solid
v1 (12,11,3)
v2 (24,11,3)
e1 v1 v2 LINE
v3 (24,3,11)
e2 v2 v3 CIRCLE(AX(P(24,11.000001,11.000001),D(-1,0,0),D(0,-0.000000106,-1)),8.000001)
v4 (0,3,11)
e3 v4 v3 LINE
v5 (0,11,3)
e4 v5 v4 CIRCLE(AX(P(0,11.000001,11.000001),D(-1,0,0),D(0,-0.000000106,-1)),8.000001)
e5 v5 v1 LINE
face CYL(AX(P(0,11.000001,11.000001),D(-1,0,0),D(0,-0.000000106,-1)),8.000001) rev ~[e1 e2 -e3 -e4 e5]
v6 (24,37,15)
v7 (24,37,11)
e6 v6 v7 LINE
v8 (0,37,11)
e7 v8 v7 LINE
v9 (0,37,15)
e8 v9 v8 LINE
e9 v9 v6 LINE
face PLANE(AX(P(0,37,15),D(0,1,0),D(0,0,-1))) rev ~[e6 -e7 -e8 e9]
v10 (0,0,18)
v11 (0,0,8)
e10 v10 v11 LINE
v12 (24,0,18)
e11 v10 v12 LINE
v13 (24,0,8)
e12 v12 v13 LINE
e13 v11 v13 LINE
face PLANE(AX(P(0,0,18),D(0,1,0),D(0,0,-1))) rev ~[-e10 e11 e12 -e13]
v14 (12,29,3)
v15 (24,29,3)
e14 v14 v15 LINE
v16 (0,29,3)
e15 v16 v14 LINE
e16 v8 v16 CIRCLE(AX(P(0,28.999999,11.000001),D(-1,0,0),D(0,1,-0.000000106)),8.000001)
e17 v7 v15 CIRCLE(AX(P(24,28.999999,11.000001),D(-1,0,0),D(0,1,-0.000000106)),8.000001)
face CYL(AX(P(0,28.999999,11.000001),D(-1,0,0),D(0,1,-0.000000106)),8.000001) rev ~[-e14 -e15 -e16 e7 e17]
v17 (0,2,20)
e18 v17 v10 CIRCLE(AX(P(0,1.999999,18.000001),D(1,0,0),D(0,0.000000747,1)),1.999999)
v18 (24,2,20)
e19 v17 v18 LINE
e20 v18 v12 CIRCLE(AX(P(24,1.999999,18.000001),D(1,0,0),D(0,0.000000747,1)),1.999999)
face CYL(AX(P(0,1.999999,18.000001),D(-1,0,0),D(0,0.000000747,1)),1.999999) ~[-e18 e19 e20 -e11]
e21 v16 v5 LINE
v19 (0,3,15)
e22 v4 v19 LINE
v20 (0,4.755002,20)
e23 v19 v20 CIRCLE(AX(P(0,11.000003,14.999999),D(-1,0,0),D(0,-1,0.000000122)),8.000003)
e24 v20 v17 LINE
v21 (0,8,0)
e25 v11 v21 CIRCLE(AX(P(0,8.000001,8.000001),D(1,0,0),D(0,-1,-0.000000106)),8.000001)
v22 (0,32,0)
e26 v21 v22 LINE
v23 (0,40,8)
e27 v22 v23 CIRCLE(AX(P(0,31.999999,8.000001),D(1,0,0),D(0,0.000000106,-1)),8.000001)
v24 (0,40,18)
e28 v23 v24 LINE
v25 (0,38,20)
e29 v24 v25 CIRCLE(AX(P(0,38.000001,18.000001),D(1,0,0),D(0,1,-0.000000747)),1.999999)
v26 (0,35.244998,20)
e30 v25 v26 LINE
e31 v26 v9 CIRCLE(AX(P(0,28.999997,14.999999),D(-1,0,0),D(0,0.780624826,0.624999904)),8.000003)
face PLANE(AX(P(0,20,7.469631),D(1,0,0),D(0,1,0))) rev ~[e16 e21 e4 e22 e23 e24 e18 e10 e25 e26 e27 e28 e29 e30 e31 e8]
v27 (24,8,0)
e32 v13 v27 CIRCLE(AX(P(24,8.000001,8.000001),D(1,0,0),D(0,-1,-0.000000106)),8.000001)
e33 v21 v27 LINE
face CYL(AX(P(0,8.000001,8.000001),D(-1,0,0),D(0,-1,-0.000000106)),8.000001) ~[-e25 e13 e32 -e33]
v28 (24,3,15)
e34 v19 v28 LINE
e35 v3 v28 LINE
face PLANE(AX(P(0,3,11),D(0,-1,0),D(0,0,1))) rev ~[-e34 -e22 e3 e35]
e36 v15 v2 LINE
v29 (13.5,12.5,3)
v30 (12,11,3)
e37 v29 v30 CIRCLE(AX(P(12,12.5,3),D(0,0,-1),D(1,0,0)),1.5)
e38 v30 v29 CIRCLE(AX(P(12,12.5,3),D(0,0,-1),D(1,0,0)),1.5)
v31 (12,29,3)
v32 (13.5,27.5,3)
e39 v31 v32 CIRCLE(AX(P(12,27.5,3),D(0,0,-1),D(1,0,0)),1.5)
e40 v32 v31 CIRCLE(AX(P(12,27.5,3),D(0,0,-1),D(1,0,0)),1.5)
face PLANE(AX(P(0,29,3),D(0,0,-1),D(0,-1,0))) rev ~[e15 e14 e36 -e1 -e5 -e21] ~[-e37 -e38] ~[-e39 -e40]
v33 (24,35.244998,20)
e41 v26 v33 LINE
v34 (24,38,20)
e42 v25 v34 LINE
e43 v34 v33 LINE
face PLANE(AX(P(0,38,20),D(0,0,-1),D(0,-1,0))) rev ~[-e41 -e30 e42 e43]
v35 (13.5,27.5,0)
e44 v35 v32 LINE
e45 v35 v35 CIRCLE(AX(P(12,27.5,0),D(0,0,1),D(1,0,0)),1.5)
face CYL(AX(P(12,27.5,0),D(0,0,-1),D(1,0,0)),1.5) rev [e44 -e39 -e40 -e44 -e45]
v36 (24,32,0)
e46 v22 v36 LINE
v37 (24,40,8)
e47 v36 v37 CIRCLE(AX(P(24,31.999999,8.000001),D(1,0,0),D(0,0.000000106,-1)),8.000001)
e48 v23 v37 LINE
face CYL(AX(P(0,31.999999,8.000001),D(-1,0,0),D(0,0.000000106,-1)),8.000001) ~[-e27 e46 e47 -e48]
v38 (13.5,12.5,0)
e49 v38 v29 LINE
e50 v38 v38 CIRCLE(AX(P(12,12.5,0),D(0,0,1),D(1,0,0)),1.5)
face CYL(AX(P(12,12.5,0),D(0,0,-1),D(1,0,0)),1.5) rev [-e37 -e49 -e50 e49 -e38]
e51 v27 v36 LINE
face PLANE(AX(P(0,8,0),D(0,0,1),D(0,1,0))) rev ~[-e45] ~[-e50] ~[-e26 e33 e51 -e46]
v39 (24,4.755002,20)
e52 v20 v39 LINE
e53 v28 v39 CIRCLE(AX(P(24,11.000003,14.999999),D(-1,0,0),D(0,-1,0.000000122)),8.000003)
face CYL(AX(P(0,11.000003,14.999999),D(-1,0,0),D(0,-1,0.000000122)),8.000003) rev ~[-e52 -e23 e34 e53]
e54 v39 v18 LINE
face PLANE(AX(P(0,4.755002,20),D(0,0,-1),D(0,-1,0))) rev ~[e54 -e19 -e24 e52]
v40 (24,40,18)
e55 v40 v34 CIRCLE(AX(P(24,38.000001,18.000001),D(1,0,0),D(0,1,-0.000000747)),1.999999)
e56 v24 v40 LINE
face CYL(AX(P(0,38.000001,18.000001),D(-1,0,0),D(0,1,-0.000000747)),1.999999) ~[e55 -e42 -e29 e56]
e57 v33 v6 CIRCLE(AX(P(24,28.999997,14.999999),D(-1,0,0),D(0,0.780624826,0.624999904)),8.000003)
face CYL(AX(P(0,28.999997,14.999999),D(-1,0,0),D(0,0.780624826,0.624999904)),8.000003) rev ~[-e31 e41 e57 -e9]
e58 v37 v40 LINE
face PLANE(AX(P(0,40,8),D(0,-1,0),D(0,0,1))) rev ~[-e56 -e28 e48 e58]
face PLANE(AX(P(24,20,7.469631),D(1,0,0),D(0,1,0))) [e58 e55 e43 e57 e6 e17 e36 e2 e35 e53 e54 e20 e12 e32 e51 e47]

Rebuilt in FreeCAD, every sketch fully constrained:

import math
import FreeCAD as App
import Part
import Sketcher
Q = App.Units.Quantity

doc = App.newDocument("Part")
body = doc.addObject("PartDesign::Body", "Body")

sketch1 = doc.addObject("Sketcher::SketchObject", "Sketch")
body.addObject(sketch1)
sketch1.AttachmentSupport = (doc.YZ_Plane, [""])
sketch1.MapMode = "FlatFace"
sketch1.addGeometry([
    Part.ArcOfCircle(Part.Circle(App.Vector(8, 8, 0), App.Vector(0, 0, 1), 8), math.radians(-180), math.radians(-90)),
    Part.LineSegment(App.Vector(8, 0, 0), App.Vector(32, 0, 0)),
    Part.ArcOfCircle(Part.Circle(App.Vector(32, 8, 0), App.Vector(0, 0, 1), 8), math.radians(-90), math.radians(0)),
    Part.LineSegment(App.Vector(40, 8, 0), App.Vector(40, 18, 0)),
    Part.ArcOfCircle(Part.Circle(App.Vector(38, 18, 0), App.Vector(0, 0, 1), 2), math.radians(0), math.radians(90)),
    Part.LineSegment(App.Vector(38, 20, 0), App.Vector(35.2, 20, 0)),
    Part.ArcOfCircle(Part.Circle(App.Vector(29, 15, 0), App.Vector(0, 0, 1), 8), math.radians(0), math.radians(39)),
    Part.LineSegment(App.Vector(37, 15, 0), App.Vector(37, 11, 0)),
    Part.ArcOfCircle(Part.Circle(App.Vector(29, 11, 0), App.Vector(0, 0, 1), 8), math.radians(-90), math.radians(0)),
    Part.LineSegment(App.Vector(29, 3, 0), App.Vector(11, 3, 0)),
    Part.ArcOfCircle(Part.Circle(App.Vector(11, 11, 0), App.Vector(0, 0, 1), 8), math.radians(-180), math.radians(-90)),
    Part.LineSegment(App.Vector(3, 11, 0), App.Vector(3, 15, 0)),
    Part.ArcOfCircle(Part.Circle(App.Vector(11, 15, 0), App.Vector(0, 0, 1), 8), math.radians(141), math.radians(180)),
    Part.LineSegment(App.Vector(4.8, 20, 0), App.Vector(2, 20, 0)),
    Part.ArcOfCircle(Part.Circle(App.Vector(2, 18, 0), App.Vector(0, 0, 1), 2), math.radians(90), math.radians(180)),
    Part.LineSegment(App.Vector(0, 18, 0), App.Vector(0, 8, 0)),
], False)
sketch1.addConstraint([
    Sketcher.Constraint("Tangent", 0, 2, 1, 1),
    Sketcher.Constraint("Tangent", 1, 2, 2, 1),
    Sketcher.Constraint("Tangent", 2, 2, 3, 1),
    Sketcher.Constraint("Tangent", 3, 2, 4, 1),
    Sketcher.Constraint("Tangent", 4, 2, 5, 1),
    Sketcher.Constraint("Coincident", 5, 2, 6, 2),
    Sketcher.Constraint("Tangent", 6, 1, 7, 1),
    Sketcher.Constraint("Tangent", 7, 2, 8, 2),
    Sketcher.Constraint("Tangent", 8, 1, 9, 1),
    Sketcher.Constraint("Tangent", 9, 2, 10, 2),
    Sketcher.Constraint("Tangent", 10, 1, 11, 1),
    Sketcher.Constraint("Tangent", 11, 2, 12, 2),
    Sketcher.Constraint("Coincident", 12, 1, 13, 1),
    Sketcher.Constraint("Tangent", 13, 2, 14, 1),
    Sketcher.Constraint("Tangent", 14, 2, 15, 1),
    Sketcher.Constraint("Tangent", 15, 2, 0, 1),
    Sketcher.Constraint("Horizontal", 1),
    Sketcher.Constraint("Vertical", 3),
    Sketcher.Constraint("Horizontal", 5),
    Sketcher.Constraint("Vertical", 7),
    Sketcher.Constraint("Horizontal", 9),
    Sketcher.Constraint("Vertical", 11),
    Sketcher.Constraint("Horizontal", 13),
    Sketcher.Constraint("Vertical", 15),
    Sketcher.Constraint("Equal", 0, 2),
    Sketcher.Constraint("Equal", 2, 6),
    Sketcher.Constraint("Equal", 6, 8),
    Sketcher.Constraint("Equal", 8, 10),
    Sketcher.Constraint("Equal", 10, 12),
    Sketcher.Constraint("Equal", 4, 14),
    Sketcher.Constraint("PointOnObject", 0, 2, -1),
    Sketcher.Constraint("PointOnObject", 14, 2, -2),
    Sketcher.Constraint("Horizontal", 6, 3, 12, 3),
    Sketcher.Constraint("Horizontal", 4, 3, 14, 3),
    Sketcher.Constraint("Equal", 5, 13),
    Sketcher.Constraint("Radius", 0, Q("8.000001 mm")),
    Sketcher.Constraint("Radius", 4, Q("1.999999 mm")),
    Sketcher.Constraint("DistanceX", 1, 1, 1, 2, Q("24 mm")),
    Sketcher.Constraint("DistanceX", 9, 2, 9, 1, Q("18 mm")),
    Sketcher.Constraint("DistanceY", 3, 1, 3, 2, Q("10 mm")),
    Sketcher.Constraint("DistanceY", 7, 2, 7, 1, Q("4 mm")),
    Sketcher.Constraint("DistanceY", -1, 1, 6, 3, Q("14.999999 mm")),
])
pad1 = doc.addObject("PartDesign::Pad", "Pad")
body.addObject(pad1)
pad1.Profile = sketch1
pad1.Length = 24

sketch2 = doc.addObject("Sketcher::SketchObject", "Sketch001")
body.addObject(sketch2)
sketch2.AttachmentSupport = (doc.XY_Plane, [""])
sketch2.MapMode = "FlatFace"
sketch2.addGeometry([
    Part.Circle(App.Vector(12, 12.5, 0), App.Vector(0, 0, 1), 1.5),
    Part.Circle(App.Vector(12, 27.5, 0), App.Vector(0, 0, 1), 1.5),
], False)
sketch2.addConstraint([
    Sketcher.Constraint("Equal", 0, 1),
    Sketcher.Constraint("Vertical", 0, 3, 1, 3),
    Sketcher.Constraint("Diameter", 0, Q("3 mm")),
    Sketcher.Constraint("DistanceX", -1, 1, 0, 3, Q("12 mm")),
    Sketcher.Constraint("DistanceY", 0, 3, 1, 3, Q("15 mm")),
    Sketcher.Constraint("DistanceY", -1, 1, 0, 3, Q("12.5 mm")),
])
pocket1 = doc.addObject("PartDesign::Pocket", "Pocket")
body.addObject(pocket1)
pocket1.Profile = sketch2
pocket1.Length = 5
pocket1.Reversed = True

doc.recompute()
